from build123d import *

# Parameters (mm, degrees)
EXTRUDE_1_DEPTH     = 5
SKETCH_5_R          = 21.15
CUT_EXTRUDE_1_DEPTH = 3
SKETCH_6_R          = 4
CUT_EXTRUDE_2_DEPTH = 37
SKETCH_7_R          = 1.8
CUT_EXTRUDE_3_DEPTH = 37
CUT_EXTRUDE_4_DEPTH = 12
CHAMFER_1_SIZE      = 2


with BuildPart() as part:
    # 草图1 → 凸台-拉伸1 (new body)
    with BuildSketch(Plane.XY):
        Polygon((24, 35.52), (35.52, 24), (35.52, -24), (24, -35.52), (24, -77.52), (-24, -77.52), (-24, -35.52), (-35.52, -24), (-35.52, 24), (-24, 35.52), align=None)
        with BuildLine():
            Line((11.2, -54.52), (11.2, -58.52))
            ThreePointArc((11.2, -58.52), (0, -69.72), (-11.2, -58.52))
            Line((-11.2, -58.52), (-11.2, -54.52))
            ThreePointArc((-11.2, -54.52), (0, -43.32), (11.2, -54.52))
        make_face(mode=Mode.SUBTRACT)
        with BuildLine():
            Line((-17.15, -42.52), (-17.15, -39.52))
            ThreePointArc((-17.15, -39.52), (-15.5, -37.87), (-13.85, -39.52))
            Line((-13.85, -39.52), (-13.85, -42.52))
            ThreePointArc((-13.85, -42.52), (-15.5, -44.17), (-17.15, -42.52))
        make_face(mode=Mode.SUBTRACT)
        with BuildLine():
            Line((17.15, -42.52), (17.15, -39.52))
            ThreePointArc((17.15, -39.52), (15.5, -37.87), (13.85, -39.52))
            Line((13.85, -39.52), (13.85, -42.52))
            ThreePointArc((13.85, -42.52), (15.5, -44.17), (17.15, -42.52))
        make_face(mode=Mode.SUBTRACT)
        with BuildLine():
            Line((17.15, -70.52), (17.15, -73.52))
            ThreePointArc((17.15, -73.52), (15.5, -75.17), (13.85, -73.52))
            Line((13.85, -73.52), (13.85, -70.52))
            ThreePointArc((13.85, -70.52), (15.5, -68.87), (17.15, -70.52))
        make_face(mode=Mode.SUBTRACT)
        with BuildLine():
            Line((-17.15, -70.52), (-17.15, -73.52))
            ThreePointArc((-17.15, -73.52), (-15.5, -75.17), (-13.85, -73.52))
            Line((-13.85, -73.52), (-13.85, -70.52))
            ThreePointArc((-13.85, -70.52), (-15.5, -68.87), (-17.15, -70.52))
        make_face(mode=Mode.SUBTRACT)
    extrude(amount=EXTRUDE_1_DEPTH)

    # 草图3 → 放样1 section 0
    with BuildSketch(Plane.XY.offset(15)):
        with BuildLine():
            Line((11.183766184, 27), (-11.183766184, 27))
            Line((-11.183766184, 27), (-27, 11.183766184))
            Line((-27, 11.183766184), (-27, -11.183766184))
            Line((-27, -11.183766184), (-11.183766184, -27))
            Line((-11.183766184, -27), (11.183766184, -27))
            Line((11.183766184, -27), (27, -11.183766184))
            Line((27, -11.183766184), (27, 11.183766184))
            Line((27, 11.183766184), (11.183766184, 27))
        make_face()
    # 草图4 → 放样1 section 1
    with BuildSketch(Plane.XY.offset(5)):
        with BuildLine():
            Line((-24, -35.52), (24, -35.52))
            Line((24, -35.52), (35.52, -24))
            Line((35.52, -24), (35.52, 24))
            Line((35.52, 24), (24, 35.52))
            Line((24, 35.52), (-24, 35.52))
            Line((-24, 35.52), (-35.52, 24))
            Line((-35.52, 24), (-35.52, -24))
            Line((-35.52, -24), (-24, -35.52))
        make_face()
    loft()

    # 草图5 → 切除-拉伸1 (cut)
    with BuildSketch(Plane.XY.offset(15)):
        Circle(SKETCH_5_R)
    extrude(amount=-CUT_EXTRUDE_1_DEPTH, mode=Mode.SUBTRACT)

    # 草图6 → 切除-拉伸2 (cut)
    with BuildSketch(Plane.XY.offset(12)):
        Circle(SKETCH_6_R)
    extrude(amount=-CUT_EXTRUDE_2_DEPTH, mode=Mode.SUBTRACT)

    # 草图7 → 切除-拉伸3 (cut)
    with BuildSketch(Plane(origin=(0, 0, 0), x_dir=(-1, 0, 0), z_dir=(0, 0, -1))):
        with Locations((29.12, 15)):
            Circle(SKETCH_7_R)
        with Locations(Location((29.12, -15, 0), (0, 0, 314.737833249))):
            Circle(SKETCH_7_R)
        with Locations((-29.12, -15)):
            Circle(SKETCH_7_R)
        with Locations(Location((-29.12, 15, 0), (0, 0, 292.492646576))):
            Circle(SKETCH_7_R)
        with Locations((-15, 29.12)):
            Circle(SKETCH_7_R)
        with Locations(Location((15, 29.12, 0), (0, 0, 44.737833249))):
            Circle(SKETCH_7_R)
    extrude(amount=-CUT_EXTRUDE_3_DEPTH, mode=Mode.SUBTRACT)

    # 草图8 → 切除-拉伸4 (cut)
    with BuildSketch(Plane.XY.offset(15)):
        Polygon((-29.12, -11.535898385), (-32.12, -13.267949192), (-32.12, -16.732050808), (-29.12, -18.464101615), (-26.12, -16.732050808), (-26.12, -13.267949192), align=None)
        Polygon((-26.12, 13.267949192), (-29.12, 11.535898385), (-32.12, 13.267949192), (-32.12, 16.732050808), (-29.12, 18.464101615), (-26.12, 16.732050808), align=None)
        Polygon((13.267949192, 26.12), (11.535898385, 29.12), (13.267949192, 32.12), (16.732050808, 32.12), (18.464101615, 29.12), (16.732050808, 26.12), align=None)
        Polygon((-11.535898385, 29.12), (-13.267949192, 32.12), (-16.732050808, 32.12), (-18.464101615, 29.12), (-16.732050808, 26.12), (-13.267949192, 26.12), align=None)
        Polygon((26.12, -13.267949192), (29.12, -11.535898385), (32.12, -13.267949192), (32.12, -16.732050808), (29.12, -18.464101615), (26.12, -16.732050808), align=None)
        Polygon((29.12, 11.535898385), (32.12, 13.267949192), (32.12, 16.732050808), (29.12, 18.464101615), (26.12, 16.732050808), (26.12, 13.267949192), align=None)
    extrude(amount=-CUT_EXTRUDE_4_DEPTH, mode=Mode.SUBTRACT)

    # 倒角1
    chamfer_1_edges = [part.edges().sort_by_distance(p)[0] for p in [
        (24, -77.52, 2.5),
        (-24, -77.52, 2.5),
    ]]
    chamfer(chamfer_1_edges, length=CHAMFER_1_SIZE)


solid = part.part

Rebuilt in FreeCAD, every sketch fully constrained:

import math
import FreeCAD as App
import Part
import Sketcher

V = App.Vector
Q = App.Units.Quantity


def edges_at(feature, points):
    """Names of the edges that pass closest to the given points."""
    edges = feature.Shape.Edges
    near = lambda p: min(range(len(edges)), key=lambda i: edges[i].distToShape(Part.Vertex(*p))[0])
    return sorted({f"Edge{near(p) + 1}" for p in points})


def add_polygon(sketch, points):
    """Adds a closed chain of lines whose ends are joined by coincident constraints."""
    first, n = sketch.GeometryCount, len(points)
    for a, b in zip(points, points[1:] + points[:1]):
        sketch.addGeometry(Part.LineSegment(App.Vector(*a, 0), App.Vector(*b, 0)), False)
    for i in range(n):
        sketch.addConstraint(Sketcher.Constraint("Coincident", first + i, 2, first + (i + 1) % n, 1))

doc = App.newDocument("Part")
params = doc.addObject("Spreadsheet::Sheet", "Params")
for row, (alias, value) in enumerate([
    ("sketch1_radius", "11.2 mm"),
    ("sketch1_width", "48 mm"),
    ("sketch1_height", "42 mm"),
    ("sketch1_height2", "3 mm"),
    ("sketch1_height3", "4 mm"),
    ("pad1_length", "5 mm"),
    ("sketch3_width", "48 mm"),
    ("sketch4_diameter", "42.3 mm"),
    ("pocket1_length", "3 mm"),
    ("sketch5_diameter", "8 mm"),
    ("pocket2_length", "37 mm"),
    ("sketch6_diameter", "3.6 mm"),
    ("pocket3_length", "37 mm"),
    ("pocket4_length", "12 mm"),
    ("chamfer_size", "2 mm"),
], start=1):
    params.set(f"A{row}", alias)
    params.set(f"B{row}", "=" + value)
    params.setAlias(f"B{row}", alias)

body = doc.addObject("PartDesign::Body", "Body")

# Sketch on XY plane
sketch1 = body.newObject("Sketcher::SketchObject", "Sketch")
sketch1.AttachmentSupport = (doc.getObject("XY_Plane"), [""])
sketch1.MapMode = "FlatFace"
add_polygon(sketch1, [(35.5, 24), (24, 35.5), (-24, 35.5), (-35.5, 24), (-35.5, -24), (-24, -35.5), (-24, -77.5), (24, -77.5), (24, -35.5), (35.5, -24)])  # lines 0-9
sketch1.addGeometry(Part.LineSegment(V(17.1, -70.5, 0), V(17.1, -73.5, 0)), False)  # 10
sketch1.addGeometry(Part.ArcOfCircle(Part.Circle(V(15.5, -73.5, 0), V(0, 0, 1), 1.6), math.radians(180), math.radians(360)), False)  # 11
sketch1.addGeometry(Part.LineSegment(V(13.8, -73.5, 0), V(13.8, -70.5, 0)), False)  # 12
sketch1.addGeometry(Part.ArcOfCircle(Part.Circle(V(15.5, -70.5, 0), V(0, 0, 1), 1.6), math.radians(0), math.radians(180)), False)  # 13
sketch1.addGeometry(Part.ArcOfCircle(Part.Circle(V(-15.5, -70.5, 0), V(0, 0, 1), 1.6), math.radians(0), math.radians(180)), False)  # 14
sketch1.addGeometry(Part.LineSegment(V(-13.8, -70.5, 0), V(-13.8, -73.5, 0)), False)  # 15
sketch1.addGeometry(Part.ArcOfCircle(Part.Circle(V(-15.5, -73.5, 0), V(0, 0, 1), 1.6), math.radians(180), math.radians(360)), False)  # 16
sketch1.addGeometry(Part.LineSegment(V(-17.1, -73.5, 0), V(-17.1, -70.5, 0)), False)  # 17
sketch1.addGeometry(Part.LineSegment(V(11.2, -54.5, 0), V(11.2, -58.5, 0)), False)  # 18
sketch1.addGeometry(Part.ArcOfCircle(Part.Circle(V(0, -58.5, 0), V(0, 0, 1), 11.2), math.radians(180), math.radians(360)), False)  # 19
sketch1.addGeometry(Part.LineSegment(V(-11.2, -58.5, 0), V(-11.2, -54.5, 0)), False)  # 20
sketch1.addGeometry(Part.ArcOfCircle(Part.Circle(V(0, -54.5, 0), V(0, 0, 1), 11.2), math.radians(0), math.radians(180)), False)  # 21
sketch1.addGeometry(Part.ArcOfCircle(Part.Circle(V(15.5, -42.5, 0), V(0, 0, 1), 1.6), math.radians(180), math.radians(360)), False)  # 22
sketch1.addGeometry(Part.LineSegment(V(13.8, -42.5, 0), V(13.8, -39.5, 0)), False)  # 23
sketch1.addGeometry(Part.ArcOfCircle(Part.Circle(V(15.5, -39.5, 0), V(0, 0, 1), 1.6), math.radians(0), math.radians(180)), False)  # 24
sketch1.addGeometry(Part.LineSegment(V(17.1, -39.5, 0), V(17.1, -42.5, 0)), False)  # 25
sketch1.addGeometry(Part.LineSegment(V(-17.1, -42.5, 0), V(-17.1, -39.5, 0)), False)  # 26
sketch1.addGeometry(Part.ArcOfCircle(Part.Circle(V(-15.5, -39.5, 0), V(0, 0, 1), 1.6), math.radians(0), math.radians(180)), False)  # 27
sketch1.addGeometry(Part.LineSegment(V(-13.8, -39.5, 0), V(-13.8, -42.5, 0)), False)  # 28
sketch1.addGeometry(Part.ArcOfCircle(Part.Circle(V(-15.5, -42.5, 0), V(0, 0, 1), 1.6), math.radians(180), math.radians(360)), False)  # 29
sketch1.addConstraint([
    Sketcher.Constraint("Tangent", 10, 2, 11, 2),
    Sketcher.Constraint("Tangent", 11, 1, 12, 1),
    Sketcher.Constraint("Tangent", 12, 2, 13, 2),
    Sketcher.Constraint("Tangent", 13, 1, 10, 1),
    Sketcher.Constraint("Tangent", 14, 1, 15, 1),
    Sketcher.Constraint("Tangent", 15, 2, 16, 2),
    Sketcher.Constraint("Tangent", 16, 1, 17, 1),
    Sketcher.Constraint("Tangent", 17, 2, 14, 2),
    Sketcher.Constraint("Tangent", 18, 2, 19, 2),
    Sketcher.Constraint("Tangent", 19, 1, 20, 1),
    Sketcher.Constraint("Tangent", 20, 2, 21, 2),
    Sketcher.Constraint("Tangent", 21, 1, 18, 1),
    Sketcher.Constraint("Tangent", 22, 1, 23, 1),
    Sketcher.Constraint("Tangent", 23, 2, 24, 2),
    Sketcher.Constraint("Tangent", 24, 1, 25, 1),
    Sketcher.Constraint("Tangent", 25, 2, 22, 2),
    Sketcher.Constraint("Tangent", 26, 2, 27, 2),
    Sketcher.Constraint("Tangent", 27, 1, 28, 1),
    Sketcher.Constraint("Tangent", 28, 2, 29, 2),
    Sketcher.Constraint("Tangent", 29, 1, 26, 1),
    Sketcher.Constraint("Horizontal", 1),
    Sketcher.Constraint("Vertical", 3),
    Sketcher.Constraint("Vertical", 5),
    Sketcher.Constraint("Horizontal", 6),
    Sketcher.Constraint("Vertical", 7),
    Sketcher.Constraint("Vertical", 9),
    Sketcher.Constraint("Vertical", 10),
    Sketcher.Constraint("Vertical", 12),
    Sketcher.Constraint("Vertical", 15),
    Sketcher.Constraint("Vertical", 17),
    Sketcher.Constraint("Vertical", 18),
    Sketcher.Constraint("Vertical", 20),
    Sketcher.Constraint("Vertical", 23),
    Sketcher.Constraint("Vertical", 25),
    Sketcher.Constraint("Vertical", 26),
    Sketcher.Constraint("Vertical", 28),
    Sketcher.Constraint("Equal", 13, 14),
    Sketcher.Constraint("Equal", 16, 22),
    Sketcher.Constraint("Equal", 24, 27),
    Sketcher.Constraint("Symmetric", 0, 2, 4, 2, -1, 1),
    Sketcher.Constraint("Symmetric", 1, 2, 7, 2, -1, 1),
    Sketcher.Constraint("Symmetric", 2, 2, 8, 2, -1, 1),
    Sketcher.Constraint("Symmetric", 13, 3, 14, 3, -2),
    Sketcher.Constraint("Symmetric", 24, 3, 27, 3, -2),
    Sketcher.Constraint("PointOnObject", 19, 3, -2),
    Sketcher.Constraint("Perpendicular", 0, 2),
    Sketcher.Constraint("Perpendicular", 2, 4),
    Sketcher.Constraint("Horizontal", 11, 3, 16, 3),
    Sketcher.Constraint("Horizontal", 22, 3, 29, 3),
    Sketcher.Constraint("Horizontal", 3, 2, 8, 2),
    Sketcher.Constraint("Vertical", 13, 3, 22, 3),
    Sketcher.Constraint("Vertical", 1, 2, 4, 2),
    Sketcher.Constraint("Equal", 6, 3),
    Sketcher.Constraint("Equal", 17, 23),
    Sketcher.Constraint("Radius", 19, Q("11.2 mm")),
    Sketcher.Constraint("DistanceX", 1, 2, 1, 1, Q("48 mm")),
    Sketcher.Constraint("DistanceY", 5, 2, 5, 1, Q("42 mm")),
    Sketcher.Constraint("DistanceY", 10, 2, 10, 1, Q("3 mm")),
    Sketcher.Constraint("DistanceY", 18, 2, 18, 1, Q("4 mm")),
    Sketcher.Constraint("Radius", 11, Q("1.65 mm")),
    Sketcher.Constraint("DistanceX", 14, 3, 13, 3, Q("31 mm")),
    Sketcher.Constraint("DistanceY", 13, 3, 19, 3, Q("12 mm")),
    Sketcher.Constraint("DistanceY", 21, 3, 22, 3, Q("12 mm")),
    Sketcher.Constraint("DistanceY", 27, 3, 4, 2, Q("4 mm")),
    Sketcher.Constraint("DistanceY", 11, 3, -1, 1, Q("73.52 mm")),
])
sketch1.setExpression("Constraints[64]", "Params.sketch1_radius")
sketch1.setExpression("Constraints[65]", "Params.sketch1_width")
sketch1.setExpression("Constraints[66]", "Params.sketch1_height")
sketch1.setExpression("Constraints[67]", "Params.sketch1_height2")
sketch1.setExpression("Constraints[68]", "Params.sketch1_height3")
pad1 = body.newObject("PartDesign::Pad", "Pad")
pad1.Profile = sketch1
pad1.setExpression("Length", "Params.pad1_length")

# Sketch on XY plane
sketch2 = body.newObject("Sketcher::SketchObject", "Sketch001")
sketch2.AttachmentSupport = (doc.getObject("XY_Plane"), [""])
sketch2.MapMode = "FlatFace"
sketch2.AttachmentOffset = App.Placement(V(0, 0, 15), App.Rotation())
add_polygon(sketch2, [(11, 27), (-11, 27), (-27, 11), (-27, -11), (-11, -27), (11, -27), (27, -11), (27, 11)])  # lines 0-7
sketch2.addConstraint([
    Sketcher.Constraint("Horizontal", 0),
    Sketcher.Constraint("Vertical", 2),
    Sketcher.Constraint("Horizontal", 4),
    Sketcher.Constraint("Vertical", 6),
    Sketcher.Constraint("Symmetric", 0, 2, 4, 2, -1, 1),
    Sketcher.Constraint("Symmetric", 1, 2, 5, 2, -1, 1),
    Sketcher.Constraint("Perpendicular", 1, 3),
    Sketcher.Constraint("Perpendicular", 5, 7),
    Sketcher.Constraint("Horizontal", 2, 2, 5, 2),
    Sketcher.Constraint("Horizontal", 1, 2, 6, 2),
    Sketcher.Constraint("Vertical", 0, 2, 3, 2),
    Sketcher.Constraint("Equal", 4, 2),
    Sketcher.Constraint("DistanceY", -1, 1, 0, 2, Q("27 mm")),
    Sketcher.Constraint("DistanceX", 0, 2, 0, 1, Q("22.367532 mm")),
])

# Sketch on XY plane
sketch3 = body.newObject("Sketcher::SketchObject", "Sketch002")
sketch3.AttachmentSupport = (doc.getObject("XY_Plane"), [""])
sketch3.MapMode = "FlatFace"
sketch3.AttachmentOffset = App.Placement(V(0, 0, 5), App.Rotation())
add_polygon(sketch3, [(-24, -36), (24, -36), (36, -24), (36, 24), (24, 36), (-24, 36), (-36, 24), (-36, -24)])  # lines 0-7
sketch3.addConstraint([
    Sketcher.Constraint("Horizontal", 0),
    Sketcher.Constraint("Vertical", 2),
    Sketcher.Constraint("Horizontal", 4),
    Sketcher.Constraint("Vertical", 6),
    Sketcher.Constraint("Symmetric", 0, 2, 4, 2, -1, 1),
    Sketcher.Constraint("Symmetric", 1, 2, 5, 2, -1, 1),
    Sketcher.Constraint("Perpendicular", 1, 3),
    Sketcher.Constraint("Perpendicular", 5, 7),
    Sketcher.Constraint("Horizontal", 2, 2, 5, 2),
    Sketcher.Constraint("Horizontal", 1, 2, 6, 2),
    Sketcher.Constraint("Vertical", 0, 2, 3, 2),
    Sketcher.Constraint("Equal", 4, 2),
    Sketcher.Constraint("DistanceX", 0, 1, 0, 2, Q("48 mm")),
    Sketcher.Constraint("DistanceY", 0, 2, -1, 1, Q("35.52 mm")),
])
sketch3.setExpression("Constraints[20]", "Params.sketch3_width")

additiveloft = body.newObject("PartDesign::AdditiveLoft", "AdditiveLoft")
additiveloft.Profile = sketch2
additiveloft.Sections = [sketch3]

# Sketch on XY plane
sketch4 = body.newObject("Sketcher::SketchObject", "Sketch003")
sketch4.AttachmentSupport = (doc.getObject("XY_Plane"), [""])
sketch4.MapMode = "FlatFace"
sketch4.AttachmentOffset = App.Placement(V(0, 0, 15), App.Rotation())
sketch4.addGeometry(Part.Circle(V(0, 0, 0), V(0, 0, 1), 21), False)
sketch4.addConstraint([
    Sketcher.Constraint("Coincident", 0, 3, -1, 1),
    Sketcher.Constraint("Diameter", 0, Q("42.3 mm")),
])
sketch4.setExpression("Constraints[1]", "Params.sketch4_diameter")
pocket1 = body.newObject("PartDesign::Pocket", "Pocket")
pocket1.Profile = sketch4
pocket1.setExpression("Length", "Params.pocket1_length")

# Sketch on XY plane
sketch5 = body.newObject("Sketcher::SketchObject", "Sketch004")
sketch5.AttachmentSupport = (doc.getObject("XY_Plane"), [""])
sketch5.MapMode = "FlatFace"
sketch5.AttachmentOffset = App.Placement(V(0, 0, 12), App.Rotation())
sketch5.addGeometry(Part.Circle(V(0, 0, 0), V(0, 0, 1), 4), False)
sketch5.addConstraint([
    Sketcher.Constraint("Coincident", 0, 3, -1, 1),
    Sketcher.Constraint("Diameter", 0, Q("8 mm")),
])
sketch5.setExpression("Constraints[1]", "Params.sketch5_diameter")
pocket2 = body.newObject("PartDesign::Pocket", "Pocket001")
pocket2.Profile = sketch5
pocket2.setExpression("Length", "Params.pocket2_length")

# Sketch on XY plane
sketch6 = body.newObject("Sketcher::SketchObject", "Sketch005")
sketch6.AttachmentSupport = (doc.getObject("XY_Plane"), [""])
sketch6.MapMode = "FlatFace"
sketch6.addGeometry([
    Part.Circle(V(-29.1, 15, 0), V(0, 0, 1), 1.8),  # 0
    Part.Circle(V(-29.1, -15, 0), V(0, 0, 1), 1.8),  # 1
    Part.Circle(V(29.1, -15, 0), V(0, 0, 1), 1.8),  # 2
    Part.Circle(V(29.1, 15, 0), V(0, 0, 1), 1.8),  # 3
    Part.Circle(V(15, 29.1, 0), V(0, 0, 1), 1.8),  # 4
    Part.Circle(V(-15, 29.1, 0), V(0, 0, 1), 1.8),  # 5
], False)
sketch6.addConstraint([
    Sketcher.Constraint("Equal", 0, 1),
    Sketcher.Constraint("Equal", 1, 2),
    Sketcher.Constraint("Equal", 2, 3),
    Sketcher.Constraint("Equal", 3, 4),
    Sketcher.Constraint("Equal", 4, 5),
    Sketcher.Constraint("Symmetric", 0, 3, 2, 3, -1, 1),
    Sketcher.Constraint("Symmetric", 1, 3, 3, 3, -1, 1),
    Sketcher.Constraint("Symmetric", 1, 3, 2, 3, -2),
    Sketcher.Constraint("Symmetric", 4, 3, 5, 3, -2),
    Sketcher.Constraint("Diameter", 0, Q("3.6 mm")),
    Sketcher.Constraint("DistanceY", -1, 1, 0, 3, Q("15 mm")),
    Sketcher.Constraint("DistanceX", -1, 1, 4, 3, Q("15 mm")),
    Sketcher.Constraint("DistanceX", 0, 3, -1, 1, Q("29.12 mm")),
    Sketcher.Constraint("DistanceY", -1, 1, 4, 3, Q("29.12 mm")),
])
sketch6.setExpression("Constraints[9]", "Params.sketch6_diameter")
pocket3 = body.newObject("PartDesign::Pocket", "Pocket002")
pocket3.Profile = sketch6
pocket3.setExpression("Length", "Params.pocket3_length")
pocket3.Reversed = True

# Sketch on XY plane
sketch7 = body.newObject("Sketcher::SketchObject", "Sketch006")
sketch7.AttachmentSupport = (doc.getObject("XY_Plane"), [""])
sketch7.MapMode = "FlatFace"
sketch7.AttachmentOffset = App.Placement(V(0, 0, 15), App.Rotation())
add_polygon(sketch7, [(-29.1, -11.5), (-32.1, -13.3), (-32.1, -16.7), (-29.1, -18.5), (-26.1, -16.7), (-26.1, -13.3)])  # lines 0-5
add_polygon(sketch7, [(-29.1, 11.5), (-26.1, 13.3), (-26.1, 16.7), (-29.1, 18.5), (-32.1, 16.7), (-32.1, 13.3)])  # lines 6-11
add_polygon(sketch7, [(11.5, 29.1), (13.3, 26.1), (16.7, 26.1), (18.5, 29.1), (16.7, 32.1), (13.3, 32.1)])  # lines 12-17
add_polygon(sketch7, [(-11.5, 29.1), (-13.3, 32.1), (-16.7, 32.1), (-18.5, 29.1), (-16.7, 26.1), (-13.3, 26.1)])  # lines 18-23
add_polygon(sketch7, [(29.1, -11.5), (26.1, -13.3), (26.1, -16.7), (29.1, -18.5), (32.1, -16.7), (32.1, -13.3)])  # lines 24-29
add_polygon(sketch7, [(29.1, 11.5), (32.1, 13.3), (32.1, 16.7), (29.1, 18.5), (26.1, 16.7), (26.1, 13.3)])  # lines 30-35
sketch7.addConstraint([
    Sketcher.Constraint("Vertical", 1),
    Sketcher.Constraint("Vertical", 4),
    Sketcher.Constraint("Vertical", 7),
    Sketcher.Constraint("Vertical", 10),
    Sketcher.Constraint("Horizontal", 13),
    Sketcher.Constraint("Horizontal", 16),
    Sketcher.Constraint("Horizontal", 19),
    Sketcher.Constraint("Horizontal", 22),
    Sketcher.Constraint("Vertical", 25),
    Sketcher.Constraint("Vertical", 28),
    Sketcher.Constraint("Vertical", 31),
    Sketcher.Constraint("Vertical", 34),
    Sketcher.Constraint("Symmetric", 6, 2, 24, 2, -1, 1),
    Sketcher.Constraint("Symmetric", 8, 2, 26, 2, -1, 1),
    Sketcher.Constraint("Symmetric", 9, 2, 27, 2, -1, 1),
    Sketcher.Constraint("Symmetric", 11, 2, 29, 2, -1, 1),
    Sketcher.Constraint("Symmetric", 0, 2, 30, 2, -1, 1),
    Sketcher.Constraint("Symmetric", 2, 2, 32, 2, -1, 1),
    Sketcher.Constraint("Symmetric", 3, 2, 33, 2, -1, 1),
    Sketcher.Constraint("Symmetric", 5, 2, 35, 2, -1, 1),
    Sketcher.Constraint("Symmetric", 16, 2, 18, 2, -2),
    Sketcher.Constraint("Symmetric", 14, 2, 20, 2, -2),
    Sketcher.Constraint("Symmetric", 13, 2, 21, 2, -2),
    Sketcher.Constraint("Symmetric", 17, 2, 23, 2, -2),
    Sketcher.Constraint("Symmetric", 4, 2, 24, 2, -2),
    Sketcher.Constraint("Symmetric", 2, 2, 26, 2, -2),
    Sketcher.Constraint("Symmetric", 1, 2, 27, 2, -2),
    Sketcher.Constraint("Symmetric", 5, 2, 29, 2, -2),
    Sketcher.Constraint("Parallel", 0, 3),
    Sketcher.Constraint("Parallel", 2, 5),
    Sketcher.Constraint("Parallel", 3, 6),
    Sketcher.Constraint("Parallel", 5, 8),
    Sketcher.Constraint("Parallel", 8, 11),
    Sketcher.Constraint("Perpendicular", 9, 12),
    Sketcher.Constraint("Perpendicular", 11, 14),
    Sketcher.Constraint("Parallel", 12, 15),
    Sketcher.Constraint("Parallel", 14, 17),
    Sketcher.Constraint("Parallel", 17, 20),
    Sketcher.Constraint("Parallel", 20, 23),
    Sketcher.Constraint("Perpendicular", 23, 26),
    Sketcher.Constraint("Parallel", 26, 29),
    Sketcher.Constraint("Parallel", 29, 32),
    Sketcher.Constraint("Parallel", 32, 35),
    Sketcher.Constraint("Horizontal", 1, 2, 3, 2),
    Sketcher.Constraint("Horizontal", 0, 2, 4, 2),
    Sketcher.Constraint("Horizontal", 14, 2, 17, 2),
    Sketcher.Constraint("Vertical", 13, 2, 15, 2),
    Sketcher.Constraint("Equal", 22, 1),
    Sketcher.Constraint("Equal", 11, 12),
    Sketcher.Constraint("Angle", 0, Q("-150 deg")),
    Sketcher.Constraint("DistanceX", 1, 2, 2, 2, Q("3 mm")),
    Sketcher.Constraint("DistanceY", 3, 2, 6, 2, Q("30 mm")),
    Sketcher.Constraint("DistanceX", 0, 2, -1, 1, Q("32.12 mm")),
    Sketcher.Constraint("DistanceY", -1, 1, 12, 2, Q("26.12 mm")),
    Sketcher.Constraint("DistanceX", 13, 1, 13, 2, Q("3.464102 mm")),
    Sketcher.Constraint("DistanceX", -1, 1, 14, 2, Q("18.464102 mm")),
])
pocket4 = body.newObject("PartDesign::Pocket", "Pocket003")
pocket4.Profile = sketch7
pocket4.setExpression("Length", "Params.pocket4_length")
doc.recompute()

chamfer = body.newObject("PartDesign::Chamfer", "Chamfer")
chamfer.Base = (pocket4, edges_at(pocket4, [(24, -77.52, 2.5), (-24, -77.52, 2.5)]))
chamfer.setExpression("Size", "Params.chamfer_size")

doc.recompute()
